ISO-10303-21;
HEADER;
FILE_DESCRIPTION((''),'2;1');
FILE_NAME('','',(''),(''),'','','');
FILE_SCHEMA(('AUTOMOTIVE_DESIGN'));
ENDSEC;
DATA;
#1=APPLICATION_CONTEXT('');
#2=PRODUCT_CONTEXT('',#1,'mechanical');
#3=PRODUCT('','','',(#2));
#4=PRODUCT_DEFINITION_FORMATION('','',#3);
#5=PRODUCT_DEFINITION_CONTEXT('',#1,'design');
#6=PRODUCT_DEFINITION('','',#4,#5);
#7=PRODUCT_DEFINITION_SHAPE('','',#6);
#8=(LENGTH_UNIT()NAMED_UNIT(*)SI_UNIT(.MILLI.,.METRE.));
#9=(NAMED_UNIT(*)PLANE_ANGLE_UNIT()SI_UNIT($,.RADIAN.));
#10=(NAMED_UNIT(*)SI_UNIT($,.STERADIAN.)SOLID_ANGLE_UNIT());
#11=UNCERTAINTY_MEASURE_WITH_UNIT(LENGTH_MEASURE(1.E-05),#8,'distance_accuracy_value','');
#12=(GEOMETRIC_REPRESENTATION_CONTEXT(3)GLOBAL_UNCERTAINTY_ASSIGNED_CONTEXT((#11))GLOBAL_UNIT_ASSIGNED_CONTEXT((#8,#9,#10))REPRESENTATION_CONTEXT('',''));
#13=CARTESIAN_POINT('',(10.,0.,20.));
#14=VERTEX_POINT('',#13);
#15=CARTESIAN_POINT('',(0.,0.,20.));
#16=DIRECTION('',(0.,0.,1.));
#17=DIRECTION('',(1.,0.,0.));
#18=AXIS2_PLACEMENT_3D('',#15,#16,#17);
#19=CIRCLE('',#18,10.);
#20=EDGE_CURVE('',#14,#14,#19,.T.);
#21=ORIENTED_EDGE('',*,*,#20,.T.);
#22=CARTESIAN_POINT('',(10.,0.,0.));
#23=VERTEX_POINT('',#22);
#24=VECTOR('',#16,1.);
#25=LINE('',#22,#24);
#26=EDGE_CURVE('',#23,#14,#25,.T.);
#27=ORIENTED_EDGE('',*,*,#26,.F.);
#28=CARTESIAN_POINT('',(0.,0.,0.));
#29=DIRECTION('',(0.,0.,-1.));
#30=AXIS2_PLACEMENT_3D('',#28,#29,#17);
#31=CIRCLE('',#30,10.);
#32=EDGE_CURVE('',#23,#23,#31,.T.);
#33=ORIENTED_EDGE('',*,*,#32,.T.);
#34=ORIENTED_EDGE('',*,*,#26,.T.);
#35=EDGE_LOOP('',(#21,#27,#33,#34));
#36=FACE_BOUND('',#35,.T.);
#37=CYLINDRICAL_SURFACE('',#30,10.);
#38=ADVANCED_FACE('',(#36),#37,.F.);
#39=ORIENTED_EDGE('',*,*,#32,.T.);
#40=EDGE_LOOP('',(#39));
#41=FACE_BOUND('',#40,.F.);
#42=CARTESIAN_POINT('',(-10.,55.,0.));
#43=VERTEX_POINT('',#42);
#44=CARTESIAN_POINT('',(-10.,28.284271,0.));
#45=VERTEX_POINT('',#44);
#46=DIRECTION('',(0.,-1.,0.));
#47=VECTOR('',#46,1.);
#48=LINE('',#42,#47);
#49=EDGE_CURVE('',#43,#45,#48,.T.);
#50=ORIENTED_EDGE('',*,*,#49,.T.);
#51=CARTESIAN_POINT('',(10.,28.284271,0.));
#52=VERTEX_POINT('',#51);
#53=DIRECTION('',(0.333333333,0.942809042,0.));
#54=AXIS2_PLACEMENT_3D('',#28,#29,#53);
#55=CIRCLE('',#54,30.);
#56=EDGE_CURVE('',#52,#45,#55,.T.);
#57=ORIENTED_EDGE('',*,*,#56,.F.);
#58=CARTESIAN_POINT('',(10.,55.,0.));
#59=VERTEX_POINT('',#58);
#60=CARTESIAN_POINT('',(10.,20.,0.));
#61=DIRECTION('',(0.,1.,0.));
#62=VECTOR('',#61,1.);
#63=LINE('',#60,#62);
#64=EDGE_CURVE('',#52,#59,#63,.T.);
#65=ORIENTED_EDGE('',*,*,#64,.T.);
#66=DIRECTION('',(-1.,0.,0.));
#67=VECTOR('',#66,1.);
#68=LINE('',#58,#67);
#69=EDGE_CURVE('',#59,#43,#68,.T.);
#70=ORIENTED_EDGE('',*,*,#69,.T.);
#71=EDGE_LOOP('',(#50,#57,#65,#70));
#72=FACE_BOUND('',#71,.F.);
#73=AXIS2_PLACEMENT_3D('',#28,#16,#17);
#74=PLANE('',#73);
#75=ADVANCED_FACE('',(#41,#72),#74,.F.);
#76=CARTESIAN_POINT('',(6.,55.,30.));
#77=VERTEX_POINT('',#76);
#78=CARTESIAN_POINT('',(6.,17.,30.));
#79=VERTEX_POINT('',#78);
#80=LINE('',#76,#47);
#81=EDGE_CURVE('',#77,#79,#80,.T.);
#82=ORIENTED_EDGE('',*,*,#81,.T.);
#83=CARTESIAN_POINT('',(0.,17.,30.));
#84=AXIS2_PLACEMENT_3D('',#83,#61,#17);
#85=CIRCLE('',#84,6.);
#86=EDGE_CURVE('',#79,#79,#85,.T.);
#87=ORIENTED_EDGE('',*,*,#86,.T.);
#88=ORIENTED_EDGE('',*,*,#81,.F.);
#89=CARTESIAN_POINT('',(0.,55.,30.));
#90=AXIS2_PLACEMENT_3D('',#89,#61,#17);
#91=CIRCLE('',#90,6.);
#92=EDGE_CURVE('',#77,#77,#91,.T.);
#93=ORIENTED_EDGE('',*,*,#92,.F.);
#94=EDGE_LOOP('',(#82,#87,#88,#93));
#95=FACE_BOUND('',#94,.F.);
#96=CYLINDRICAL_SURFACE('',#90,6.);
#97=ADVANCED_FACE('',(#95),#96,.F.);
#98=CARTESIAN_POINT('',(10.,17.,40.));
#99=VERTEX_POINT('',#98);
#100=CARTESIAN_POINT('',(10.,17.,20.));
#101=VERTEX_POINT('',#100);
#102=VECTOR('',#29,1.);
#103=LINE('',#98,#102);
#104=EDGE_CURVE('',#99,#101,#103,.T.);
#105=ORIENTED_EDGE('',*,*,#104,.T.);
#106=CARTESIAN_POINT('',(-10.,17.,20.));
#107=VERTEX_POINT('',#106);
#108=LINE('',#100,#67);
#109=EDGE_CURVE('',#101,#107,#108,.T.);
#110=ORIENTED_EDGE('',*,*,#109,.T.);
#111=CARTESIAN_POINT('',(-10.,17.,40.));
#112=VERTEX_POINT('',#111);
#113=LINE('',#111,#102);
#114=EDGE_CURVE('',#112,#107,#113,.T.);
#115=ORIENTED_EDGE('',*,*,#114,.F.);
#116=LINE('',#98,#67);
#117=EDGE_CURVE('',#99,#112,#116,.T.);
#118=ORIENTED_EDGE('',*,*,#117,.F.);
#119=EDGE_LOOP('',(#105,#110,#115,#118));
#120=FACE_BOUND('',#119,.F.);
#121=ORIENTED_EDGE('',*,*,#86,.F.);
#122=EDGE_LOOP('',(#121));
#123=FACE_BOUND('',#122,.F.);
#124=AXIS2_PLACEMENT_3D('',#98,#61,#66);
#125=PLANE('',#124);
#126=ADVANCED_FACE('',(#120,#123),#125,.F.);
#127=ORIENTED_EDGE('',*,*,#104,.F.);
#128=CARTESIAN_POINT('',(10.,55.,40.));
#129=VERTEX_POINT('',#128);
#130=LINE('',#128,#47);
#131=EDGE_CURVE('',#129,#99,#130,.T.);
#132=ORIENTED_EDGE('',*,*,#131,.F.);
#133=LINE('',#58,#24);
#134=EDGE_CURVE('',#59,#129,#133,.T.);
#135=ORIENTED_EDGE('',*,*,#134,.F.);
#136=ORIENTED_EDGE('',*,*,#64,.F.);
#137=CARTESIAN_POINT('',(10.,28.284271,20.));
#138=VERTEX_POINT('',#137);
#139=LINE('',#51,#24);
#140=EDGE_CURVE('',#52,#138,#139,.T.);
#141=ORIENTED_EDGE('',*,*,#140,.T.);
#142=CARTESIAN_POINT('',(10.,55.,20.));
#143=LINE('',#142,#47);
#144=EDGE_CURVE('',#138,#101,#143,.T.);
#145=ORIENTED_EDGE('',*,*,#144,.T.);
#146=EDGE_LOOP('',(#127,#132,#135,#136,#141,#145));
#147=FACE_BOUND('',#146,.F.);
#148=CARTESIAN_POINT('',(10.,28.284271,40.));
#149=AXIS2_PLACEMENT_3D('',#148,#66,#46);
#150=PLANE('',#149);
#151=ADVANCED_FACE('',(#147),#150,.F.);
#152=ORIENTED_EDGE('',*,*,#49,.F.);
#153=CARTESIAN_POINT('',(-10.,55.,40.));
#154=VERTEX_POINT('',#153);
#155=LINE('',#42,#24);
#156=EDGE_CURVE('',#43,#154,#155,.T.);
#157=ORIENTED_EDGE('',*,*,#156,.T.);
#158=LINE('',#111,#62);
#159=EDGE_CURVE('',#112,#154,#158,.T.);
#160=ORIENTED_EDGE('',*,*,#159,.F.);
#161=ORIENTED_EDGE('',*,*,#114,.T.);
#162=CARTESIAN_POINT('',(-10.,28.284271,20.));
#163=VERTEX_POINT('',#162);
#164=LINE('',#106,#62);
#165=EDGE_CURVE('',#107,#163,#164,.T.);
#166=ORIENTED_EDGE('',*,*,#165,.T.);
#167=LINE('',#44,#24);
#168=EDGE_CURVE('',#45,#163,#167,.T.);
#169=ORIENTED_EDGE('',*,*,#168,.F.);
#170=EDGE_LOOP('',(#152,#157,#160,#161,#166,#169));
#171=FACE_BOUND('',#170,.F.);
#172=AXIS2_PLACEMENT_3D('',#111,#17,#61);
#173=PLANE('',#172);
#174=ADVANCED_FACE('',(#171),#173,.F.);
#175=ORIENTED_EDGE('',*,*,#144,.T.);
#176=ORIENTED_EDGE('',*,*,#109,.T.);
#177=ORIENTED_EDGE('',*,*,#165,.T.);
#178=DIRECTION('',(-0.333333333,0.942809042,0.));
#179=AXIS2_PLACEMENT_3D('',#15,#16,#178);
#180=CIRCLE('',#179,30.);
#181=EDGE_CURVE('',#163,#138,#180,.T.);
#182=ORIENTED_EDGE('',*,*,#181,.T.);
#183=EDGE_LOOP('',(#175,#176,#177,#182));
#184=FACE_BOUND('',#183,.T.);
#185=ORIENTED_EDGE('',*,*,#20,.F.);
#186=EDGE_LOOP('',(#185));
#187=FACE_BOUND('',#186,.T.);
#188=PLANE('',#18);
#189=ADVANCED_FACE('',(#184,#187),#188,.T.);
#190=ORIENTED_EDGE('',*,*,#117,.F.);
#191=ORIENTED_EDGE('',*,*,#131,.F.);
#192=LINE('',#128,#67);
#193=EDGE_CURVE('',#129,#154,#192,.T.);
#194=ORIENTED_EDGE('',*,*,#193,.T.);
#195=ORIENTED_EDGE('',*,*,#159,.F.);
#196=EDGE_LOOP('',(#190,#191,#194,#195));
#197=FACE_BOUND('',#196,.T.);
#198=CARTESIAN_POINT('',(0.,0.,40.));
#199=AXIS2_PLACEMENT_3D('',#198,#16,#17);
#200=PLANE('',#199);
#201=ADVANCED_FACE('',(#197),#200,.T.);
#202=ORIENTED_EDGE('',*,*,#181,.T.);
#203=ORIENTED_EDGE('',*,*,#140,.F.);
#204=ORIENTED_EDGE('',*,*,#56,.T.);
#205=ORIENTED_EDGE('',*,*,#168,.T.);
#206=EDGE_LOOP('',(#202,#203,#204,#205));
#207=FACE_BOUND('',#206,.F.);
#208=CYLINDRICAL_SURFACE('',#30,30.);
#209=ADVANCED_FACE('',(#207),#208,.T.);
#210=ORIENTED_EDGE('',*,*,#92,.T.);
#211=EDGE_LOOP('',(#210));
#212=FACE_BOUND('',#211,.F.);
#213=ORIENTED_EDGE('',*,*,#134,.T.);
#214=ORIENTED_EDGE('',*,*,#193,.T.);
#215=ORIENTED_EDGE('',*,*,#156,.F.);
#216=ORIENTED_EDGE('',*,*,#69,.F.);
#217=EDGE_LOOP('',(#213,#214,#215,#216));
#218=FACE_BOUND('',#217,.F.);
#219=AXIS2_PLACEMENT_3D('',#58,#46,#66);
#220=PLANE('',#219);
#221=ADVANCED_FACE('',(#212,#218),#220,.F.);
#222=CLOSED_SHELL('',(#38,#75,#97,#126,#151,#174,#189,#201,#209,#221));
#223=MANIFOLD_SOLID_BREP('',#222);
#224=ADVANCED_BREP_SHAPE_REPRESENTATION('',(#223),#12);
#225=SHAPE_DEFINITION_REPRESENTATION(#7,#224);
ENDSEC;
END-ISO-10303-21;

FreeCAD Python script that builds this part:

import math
import FreeCAD as App
import Part
import Sketcher

V = App.Vector

doc = App.newDocument("Part")
body = doc.addObject("PartDesign::Body", "Body")

# Sketch on XY plane
sketch1 = body.newObject("Sketcher::SketchObject", "Sketch")
sketch1.AttachmentSupport = (doc.getObject("XY_Plane"), [""])
sketch1.MapMode = "FlatFace"
sketch1.addGeometry([
    Part.LineSegment(V(10, 28, 0), V(10, 55, 0)),  # 0
    Part.LineSegment(V(10, 55, 0), V(-10, 55, 0)),  # 1
    Part.LineSegment(V(-10, 55, 0), V(-10, 28, 0)),  # 2
    Part.ArcOfCircle(Part.Circle(V(0, 0, 0), V(0, 0, 1), 30), math.radians(109), math.radians(431)),  # 3
    Part.Circle(V(0, 0, 0), V(0, 0, 1), 10),  # 4
], False)
sketch1.addConstraint([
    Sketcher.Constraint("Coincident", 0, 2, 1, 1),
    Sketcher.Constraint("Coincident", 1, 2, 2, 1),
    Sketcher.Constraint("Coincident", 2, 2, 3, 1),
    Sketcher.Constraint("Coincident", 3, 2, 0, 1),
    Sketcher.Constraint("Vertical", 0),
    Sketcher.Constraint("Horizontal", 1),
    Sketcher.Constraint("Vertical", 2),
    Sketcher.Constraint("Coincident", 3, 3, -1, 1),
    Sketcher.Constraint("Coincident", 4, 3, -1, 1),
    Sketcher.Constraint("Horizontal", 2, 2, 3, 2),
    Sketcher.Constraint("Diameter", 4, 20.0),
    Sketcher.Constraint("Radius", 3, 30.0),
    Sketcher.Constraint("DistanceX", 1, 2, 1, 1, 20.0),
    Sketcher.Constraint("DistanceY", -1, 1, 0, 2, 55.0),
])
pad1 = body.newObject("PartDesign::Pad", "Pad")
pad1.Profile = sketch1
pad1.Length = 40

# Sketch on XY plane
sketch2 = body.newObject("Sketcher::SketchObject", "Sketch001")
sketch2.AttachmentSupport = (doc.getObject("XY_Plane"), [""])
sketch2.MapMode = "FlatFace"
sketch2.AttachmentOffset = App.Placement(V(0, 0, 40), App.Rotation())
sketch2.addGeometry([
    Part.ArcOfCircle(Part.Circle(V(0, 0, 0), V(0, 0, 1), 30), math.radians(109), math.radians(431)),  # 0
    Part.LineSegment(V(10, 28, 0), V(10, 17, 0)),  # 1
    Part.LineSegment(V(10, 17, 0), V(-10, 17, 0)),  # 2
    Part.LineSegment(V(-10, 17, 0), V(-10, 28, 0)),  # 3
    Part.Circle(V(0, 0, 0), V(0, 0, 1), 10),  # 4
], False)
sketch2.addConstraint([
    Sketcher.Constraint("Coincident", 0, 2, 1, 1),
    Sketcher.Constraint("Coincident", 1, 2, 2, 1),
    Sketcher.Constraint("Coincident", 2, 2, 3, 1),
    Sketcher.Constraint("Coincident", 3, 2, 0, 1),
    Sketcher.Constraint("Vertical", 1),
    Sketcher.Constraint("Horizontal", 2),
    Sketcher.Constraint("Vertical", 3),
    Sketcher.Constraint("Coincident", 0, 3, -1, 1),
    Sketcher.Constraint("Coincident", 4, 3, -1, 1),
    Sketcher.Constraint("Horizontal", 0, 2, 3, 2),
    Sketcher.Constraint("Diameter", 4, 20.0),
    Sketcher.Constraint("Radius", 0, 30.0),
    Sketcher.Constraint("DistanceX", 2, 2, 2, 1, 20.0),
    Sketcher.Constraint("DistanceY", -1, 1, 1, 2, 17.0),
])
pocket1 = body.newObject("PartDesign::Pocket", "Pocket")
pocket1.Profile = sketch2
pocket1.Length = 20

# Sketch on XZ plane
sketch3 = body.newObject("Sketcher::SketchObject", "Sketch002")
sketch3.AttachmentSupport = (doc.getObject("XZ_Plane"), [""])
sketch3.MapMode = "FlatFace"
sketch3.AttachmentOffset = App.Placement(V(0, 0, -55), App.Rotation())
sketch3.addGeometry(Part.Circle(V(0, 30, 0), V(0, 0, 1), 6), False)
sketch3.addConstraint([
    Sketcher.Constraint("PointOnObject", 0, 3, -2),
    Sketcher.Constraint("Diameter", 0, 12.0),
    Sketcher.Constraint("DistanceY", -1, 1, 0, 3, 30.0),
])
pocket2 = body.newObject("PartDesign::Pocket", "Pocket001")
pocket2.Profile = sketch3
pocket2.Length = 40.325
pocket2.Reversed = True

doc.recompute()
